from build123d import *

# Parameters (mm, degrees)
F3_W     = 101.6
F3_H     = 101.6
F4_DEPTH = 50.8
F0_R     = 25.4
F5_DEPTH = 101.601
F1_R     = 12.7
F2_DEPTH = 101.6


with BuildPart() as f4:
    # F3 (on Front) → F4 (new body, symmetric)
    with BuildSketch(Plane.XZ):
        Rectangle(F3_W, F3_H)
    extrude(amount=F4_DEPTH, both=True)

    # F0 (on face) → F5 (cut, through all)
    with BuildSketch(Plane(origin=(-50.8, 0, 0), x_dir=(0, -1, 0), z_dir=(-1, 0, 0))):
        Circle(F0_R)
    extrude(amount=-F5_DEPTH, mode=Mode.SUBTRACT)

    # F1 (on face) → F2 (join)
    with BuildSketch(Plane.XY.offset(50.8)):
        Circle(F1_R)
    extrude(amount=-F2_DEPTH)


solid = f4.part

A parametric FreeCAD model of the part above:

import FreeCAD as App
import Part
import Sketcher

V = App.Vector
Q = App.Units.Quantity

doc = App.newDocument("Part")
body = doc.addObject("PartDesign::Body", "Body")

sketch1 = body.newObject("Sketcher::SketchObject", "Sketch")
sketch1.AttachmentSupport = (doc.getObject("XZ_Plane"), [""])
sketch1.MapMode = "FlatFace"
sketch1.addGeometry([
    Part.LineSegment(V(-50.8, 50.8, 0), V(-50.8, -50.8, 0)),
    Part.LineSegment(V(-50.8, -50.8, 0), V(50.8, -50.8, 0)),
    Part.LineSegment(V(50.8, -50.8, 0), V(50.8, 50.8, 0)),
    Part.LineSegment(V(50.8, 50.8, 0), V(-50.8, 50.8, 0)),
], False)
sketch1.addConstraint([
    Sketcher.Constraint("Coincident", 0, 2, 1, 1),
    Sketcher.Constraint("Coincident", 1, 2, 2, 1),
    Sketcher.Constraint("Coincident", 2, 2, 3, 1),
    Sketcher.Constraint("Coincident", 3, 2, 0, 1),
    Sketcher.Constraint("Vertical", 0),
    Sketcher.Constraint("Horizontal", 1),
    Sketcher.Constraint("Vertical", 2),
    Sketcher.Constraint("Horizontal", 3),
    Sketcher.Constraint("Symmetric", 0, 2, 2, 2, -1, 1),
    Sketcher.Constraint("Equal", 3, 0),
    Sketcher.Constraint("DistanceX", 1, 1, 1, 2, Q("4 in")),
])
pad1 = body.newObject("PartDesign::Pad", "Pad")
pad1.Profile = sketch1
pad1.Length = Q("4 in")
pad1.Midplane = True

sketch2 = body.newObject("Sketcher::SketchObject", "Sketch001")
sketch2.AttachmentSupport = (doc.getObject("YZ_Plane"), [""])
sketch2.MapMode = "FlatFace"
sketch2.AttachmentOffset = App.Placement(V(0, 0, -2 * 25.4), App.Rotation())
sketch2.addGeometry(Part.Circle(V(0, 0, 0), V(0, 0, 1), 25.4), False)
sketch2.addConstraint([
    Sketcher.Constraint("Coincident", 0, 3, -1, 1),
    Sketcher.Constraint("Diameter", 0, Q("2 in")),
])
pocket1 = body.newObject("PartDesign::Pocket", "Pocket")
pocket1.Profile = sketch2
pocket1.Type = "ThroughAll"
pocket1.Reversed = True

sketch3 = body.newObject("Sketcher::SketchObject", "Sketch002")
sketch3.AttachmentSupport = (doc.getObject("XY_Plane"), [""])
sketch3.MapMode = "FlatFace"
sketch3.AttachmentOffset = App.Placement(V(0, 0, 2 * 25.4), App.Rotation())
sketch3.addGeometry(Part.Circle(V(0, 0, 0), V(0, 0, 1), 12.7), False)
sketch3.addConstraint([
    Sketcher.Constraint("Coincident", 0, 3, -1, 1),
    Sketcher.Constraint("Diameter", 0, Q("1 in")),
])
pad2 = body.newObject("PartDesign::Pad", "Pad001")
pad2.Profile = sketch3
pad2.Length = Q("4 in")
pad2.Reversed = True

doc.recompute()
